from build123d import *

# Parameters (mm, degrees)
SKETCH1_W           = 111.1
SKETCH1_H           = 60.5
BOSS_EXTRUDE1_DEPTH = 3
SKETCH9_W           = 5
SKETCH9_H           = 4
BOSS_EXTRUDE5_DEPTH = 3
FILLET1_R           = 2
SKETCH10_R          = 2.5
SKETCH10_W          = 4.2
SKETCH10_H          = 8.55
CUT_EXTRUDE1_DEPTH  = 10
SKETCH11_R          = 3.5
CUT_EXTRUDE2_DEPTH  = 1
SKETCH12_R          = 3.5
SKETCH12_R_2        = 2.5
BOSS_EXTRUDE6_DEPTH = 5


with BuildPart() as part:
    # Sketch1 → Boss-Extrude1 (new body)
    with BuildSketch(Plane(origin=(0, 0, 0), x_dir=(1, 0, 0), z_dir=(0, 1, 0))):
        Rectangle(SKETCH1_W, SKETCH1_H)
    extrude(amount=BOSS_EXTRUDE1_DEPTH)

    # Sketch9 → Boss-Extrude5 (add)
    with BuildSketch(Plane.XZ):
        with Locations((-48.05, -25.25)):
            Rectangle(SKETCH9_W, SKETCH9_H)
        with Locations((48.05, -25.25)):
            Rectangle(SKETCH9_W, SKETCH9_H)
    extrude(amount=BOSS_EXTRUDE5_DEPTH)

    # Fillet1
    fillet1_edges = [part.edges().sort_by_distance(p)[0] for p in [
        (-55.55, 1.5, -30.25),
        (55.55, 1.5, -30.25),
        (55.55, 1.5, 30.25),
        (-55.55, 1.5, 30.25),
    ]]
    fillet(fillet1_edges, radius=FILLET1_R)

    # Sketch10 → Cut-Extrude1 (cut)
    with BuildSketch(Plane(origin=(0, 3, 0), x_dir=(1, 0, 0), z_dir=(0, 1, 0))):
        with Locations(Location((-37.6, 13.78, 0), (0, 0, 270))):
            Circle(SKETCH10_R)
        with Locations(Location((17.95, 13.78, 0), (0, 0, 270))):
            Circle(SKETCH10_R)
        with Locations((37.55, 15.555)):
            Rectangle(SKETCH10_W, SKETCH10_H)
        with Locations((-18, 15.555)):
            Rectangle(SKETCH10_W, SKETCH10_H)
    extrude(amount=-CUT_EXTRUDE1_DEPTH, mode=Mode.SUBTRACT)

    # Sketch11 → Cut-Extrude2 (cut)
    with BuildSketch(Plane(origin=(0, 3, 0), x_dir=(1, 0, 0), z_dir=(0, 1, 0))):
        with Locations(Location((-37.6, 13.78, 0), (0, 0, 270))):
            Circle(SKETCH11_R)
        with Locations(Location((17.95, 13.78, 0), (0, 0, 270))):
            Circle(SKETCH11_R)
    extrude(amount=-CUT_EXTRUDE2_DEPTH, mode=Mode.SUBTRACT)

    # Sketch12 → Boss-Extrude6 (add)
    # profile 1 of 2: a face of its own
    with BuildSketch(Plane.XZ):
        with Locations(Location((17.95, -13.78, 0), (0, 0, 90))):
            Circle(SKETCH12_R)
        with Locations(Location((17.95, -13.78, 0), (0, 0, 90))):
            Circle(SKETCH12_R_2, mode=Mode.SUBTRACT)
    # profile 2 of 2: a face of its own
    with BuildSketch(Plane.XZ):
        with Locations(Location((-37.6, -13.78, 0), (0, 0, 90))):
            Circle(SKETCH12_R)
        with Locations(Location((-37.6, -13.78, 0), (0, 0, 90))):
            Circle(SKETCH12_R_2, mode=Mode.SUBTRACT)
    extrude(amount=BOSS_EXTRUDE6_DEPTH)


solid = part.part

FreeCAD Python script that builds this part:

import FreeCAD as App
import Part
import Sketcher

V = App.Vector
Q = App.Units.Quantity


def edges_at(feature, points):
    """Names of the edges that pass closest to the given points."""
    edges = feature.Shape.Edges
    near = lambda p: min(range(len(edges)), key=lambda i: edges[i].distToShape(Part.Vertex(*p))[0])
    return sorted({f"Edge{near(p) + 1}" for p in points})


def add_polygon(sketch, points):
    """Adds a closed chain of lines whose ends are joined by coincident constraints."""
    first, n = sketch.GeometryCount, len(points)
    for a, b in zip(points, points[1:] + points[:1]):
        sketch.addGeometry(Part.LineSegment(App.Vector(*a, 0), App.Vector(*b, 0)), False)
    for i in range(n):
        sketch.addConstraint(Sketcher.Constraint("Coincident", first + i, 2, first + (i + 1) % n, 1))

doc = App.newDocument("Part")
params = doc.addObject("Spreadsheet::Sheet", "Params")
for row, (alias, value) in enumerate([
    ("sketch1_width", "111.1 mm"),
    ("sketch1_height", "60.5 mm"),
    ("pad1_length", "3 mm"),
    ("sketch2_width", "5 mm"),
    ("sketch2_height", "4 mm"),
    ("pad2_length", "3 mm"),
    ("fillet_radius", "2 mm"),
    ("sketch3_diameter", "5 mm"),
    ("sketch3_width", "4.2 mm"),
    ("sketch3_height", "8.55 mm"),
    ("pocket1_length", "10 mm"),
    ("sketch4_diameter", "7 mm"),
    ("pocket2_length", "1 mm"),
    ("sketch5_diameter", "7 mm"),
    ("sketch5_diameter2", "5 mm"),
    ("pad3_length", "5 mm"),
], start=1):
    params.set(f"A{row}", alias)
    params.set(f"B{row}", "=" + value)
    params.setAlias(f"B{row}", alias)

body = doc.addObject("PartDesign::Body", "Body")

sketch1 = doc.addObject("Sketcher::SketchObject", "Sketch")
body.addObject(sketch1)
sketch1.AttachmentSupport = (doc.XZ_Plane, [""])
sketch1.MapMode = "FlatFace"
add_polygon(sketch1, [(-56, -30), (-56, 30), (56, 30), (56, -30)])
sketch1.addConstraint([
    Sketcher.Constraint("Vertical", 0),
    Sketcher.Constraint("Horizontal", 1),
    Sketcher.Constraint("Vertical", 2),
    Sketcher.Constraint("Horizontal", 3),
    Sketcher.Constraint("Symmetric", 0, 2, 2, 2, -1, 1),
    Sketcher.Constraint("DistanceX", 1, 1, 1, 2, Q("111.1 mm")),
    Sketcher.Constraint("DistanceY", 0, 1, 0, 2, Q("60.5 mm")),
])
sketch1.setExpression("Constraints[9]", "Params.sketch1_width")
sketch1.setExpression("Constraints[10]", "Params.sketch1_height")
pad1 = doc.addObject("PartDesign::Pad", "Pad")
body.addObject(pad1)
pad1.Profile = sketch1
pad1.setExpression("Length", "Params.pad1_length")
pad1.Reversed = True

sketch2 = doc.addObject("Sketcher::SketchObject", "Sketch001")
body.addObject(sketch2)
sketch2.AttachmentSupport = (doc.XZ_Plane, [""])
sketch2.MapMode = "FlatFace"
add_polygon(sketch2, [(-50.5, -23.2), (-50.5, -27.2), (-45.5, -27.2), (-45.5, -23.2)])
add_polygon(sketch2, [(45.5, -23.2), (45.5, -27.2), (50.5, -27.2), (50.5, -23.2)])
sketch2.addConstraint([
    Sketcher.Constraint("Vertical", 0),
    Sketcher.Constraint("Horizontal", 1),
    Sketcher.Constraint("Vertical", 2),
    Sketcher.Constraint("Horizontal", 3),
    Sketcher.Constraint("Vertical", 4),
    Sketcher.Constraint("Horizontal", 5),
    Sketcher.Constraint("Vertical", 6),
    Sketcher.Constraint("Horizontal", 7),
    Sketcher.Constraint("Symmetric", 1, 2, 4, 2, -2),
    Sketcher.Constraint("Symmetric", 3, 2, 6, 2, -2),
    Sketcher.Constraint("DistanceX", 1, 1, 1, 2, Q("5 mm")),
    Sketcher.Constraint("DistanceY", 0, 2, 0, 1, Q("4 mm")),
    Sketcher.Constraint("DistanceX", 1, 2, 4, 2, Q("91.1 mm")),
    Sketcher.Constraint("DistanceY", 0, 2, -1, 1, Q("27.25 mm")),
])
sketch2.setExpression("Constraints[18]", "Params.sketch2_width")
sketch2.setExpression("Constraints[19]", "Params.sketch2_height")
pad2 = doc.addObject("PartDesign::Pad", "Pad001")
body.addObject(pad2)
pad2.Profile = sketch2
pad2.setExpression("Length", "Params.pad2_length")
doc.recompute()

fillet = doc.addObject("PartDesign::Fillet", "Fillet")
body.addObject(fillet)
fillet.Base = (pad2, edges_at(pad2, [
    (-55.55, 1.5, -30.25),
    (55.55, 1.5, -30.25),
    (55.55, 1.5, 30.25),
    (-55.55, 1.5, 30.25),
]))
fillet.setExpression("Radius", "Params.fillet_radius")

sketch3 = doc.addObject("Sketcher::SketchObject", "Sketch002")
body.addObject(sketch3)
sketch3.AttachmentSupport = (doc.XZ_Plane, [""])
sketch3.MapMode = "FlatFace"
sketch3.AttachmentOffset = App.Placement(V(0, 0, -3), App.Rotation())
sketch3.addGeometry(Part.Circle(V(-37.6, -13.8, 0), V(0, 0, 1), 2.5), False)
sketch3.addGeometry(Part.Circle(V(17.9, -13.8, 0), V(0, 0, 1), 2.5), False)
add_polygon(sketch3, [(35.5, -19.8), (35.5, -11.3), (39.6, -11.3), (39.6, -19.8)])
add_polygon(sketch3, [(-20.1, -19.8), (-20.1, -11.3), (-15.9, -11.3), (-15.9, -19.8)])
sketch3.addConstraint([
    Sketcher.Constraint("Vertical", 2),
    Sketcher.Constraint("Horizontal", 3),
    Sketcher.Constraint("Vertical", 4),
    Sketcher.Constraint("Horizontal", 5),
    Sketcher.Constraint("Vertical", 6),
    Sketcher.Constraint("Horizontal", 7),
    Sketcher.Constraint("Vertical", 8),
    Sketcher.Constraint("Horizontal", 9),
    Sketcher.Constraint("Equal", 0, 1),
    Sketcher.Constraint("Horizontal", 0, 3, 1, 3),
    Sketcher.Constraint("Horizontal", 3, 2, 6, 2),
    Sketcher.Constraint("Horizontal", 5, 2, 8, 2),
    Sketcher.Constraint("Equal", 5, 7),
    Sketcher.Constraint("Diameter", 0, Q("5 mm")),
    Sketcher.Constraint("DistanceX", 3, 1, 3, 2, Q("4.2 mm")),
    Sketcher.Constraint("DistanceY", 2, 1, 2, 2, Q("8.55 mm")),
    Sketcher.Constraint("DistanceX", 0, 3, -1, 1, Q("37.6 mm")),
    Sketcher.Constraint("DistanceX", 6, 2, -1, 1, Q("20.1 mm")),
    Sketcher.Constraint("DistanceX", 1, 3, 2, 2, Q("17.5 mm")),
    Sketcher.Constraint("DistanceY", 1, 3, 2, 2, Q("2.5 mm")),
    Sketcher.Constraint("DistanceY", 0, 3, -1, 1, Q("13.78 mm")),
    Sketcher.Constraint("DistanceX", -1, 1, 1, 3, Q("17.95 mm")),
])
sketch3.setExpression("Constraints[21]", "Params.sketch3_diameter")
sketch3.setExpression("Constraints[22]", "Params.sketch3_width")
sketch3.setExpression("Constraints[23]", "Params.sketch3_height")
pocket1 = doc.addObject("PartDesign::Pocket", "Pocket")
body.addObject(pocket1)
pocket1.Profile = sketch3
pocket1.setExpression("Length", "Params.pocket1_length")
pocket1.Reversed = True

sketch4 = doc.addObject("Sketcher::SketchObject", "Sketch003")
body.addObject(sketch4)
sketch4.AttachmentSupport = (doc.XZ_Plane, [""])
sketch4.MapMode = "FlatFace"
sketch4.AttachmentOffset = App.Placement(V(0, 0, -3), App.Rotation())
sketch4.addGeometry([
    Part.Circle(V(-37.6, -13.8, 0), V(0, 0, 1), 3.5),
    Part.Circle(V(17.9, -13.8, 0), V(0, 0, 1), 3.5),
], False)
sketch4.addConstraint([
    Sketcher.Constraint("Equal", 0, 1),
    Sketcher.Constraint("Horizontal", 0, 3, 1, 3),
    Sketcher.Constraint("Diameter", 0, Q("7 mm")),
    Sketcher.Constraint("DistanceX", 0, 3, -1, 1, Q("37.6 mm")),
    Sketcher.Constraint("DistanceY", 0, 3, -1, 1, Q("13.78 mm")),
    Sketcher.Constraint("DistanceX", -1, 1, 1, 3, Q("17.95 mm")),
])
sketch4.setExpression("Constraints[2]", "Params.sketch4_diameter")
pocket2 = doc.addObject("PartDesign::Pocket", "Pocket001")
body.addObject(pocket2)
pocket2.Profile = sketch4
pocket2.setExpression("Length", "Params.pocket2_length")
pocket2.Reversed = True

sketch5 = doc.addObject("Sketcher::SketchObject", "Sketch004")
body.addObject(sketch5)
sketch5.AttachmentSupport = (doc.XZ_Plane, [""])
sketch5.MapMode = "FlatFace"
sketch5.addGeometry([
    Part.Circle(V(17.9, -13.8, 0), V(0, 0, 1), 3.5),
    Part.Circle(V(17.9, -13.8, 0), V(0, 0, 1), 2.5),
    Part.Circle(V(-37.6, -13.8, 0), V(0, 0, 1), 3.5),
    Part.Circle(V(-37.6, -13.8, 0), V(0, 0, 1), 2.5),
], False)
sketch5.addConstraint([
    Sketcher.Constraint("Coincident", 1, 3, 0, 3),
    Sketcher.Constraint("Coincident", 3, 3, 2, 3),
    Sketcher.Constraint("Equal", 0, 2),
    Sketcher.Constraint("Equal", 1, 3),
    Sketcher.Constraint("Horizontal", 1, 3, 2, 3),
    Sketcher.Constraint("Diameter", 0, Q("7 mm")),
    Sketcher.Constraint("Diameter", 1, Q("5 mm")),
    Sketcher.Constraint("DistanceX", 2, 3, -1, 1, Q("37.6 mm")),
    Sketcher.Constraint("DistanceX", -1, 1, 0, 3, Q("17.95 mm")),
    Sketcher.Constraint("DistanceY", 0, 3, -1, 1, Q("13.78 mm")),
])
sketch5.setExpression("Constraints[5]", "Params.sketch5_diameter")
sketch5.setExpression("Constraints[6]", "Params.sketch5_diameter2")
pad3 = doc.addObject("PartDesign::Pad", "Pad002")
body.addObject(pad3)
pad3.Profile = sketch5
pad3.setExpression("Length", "Params.pad3_length")

doc.recompute()
